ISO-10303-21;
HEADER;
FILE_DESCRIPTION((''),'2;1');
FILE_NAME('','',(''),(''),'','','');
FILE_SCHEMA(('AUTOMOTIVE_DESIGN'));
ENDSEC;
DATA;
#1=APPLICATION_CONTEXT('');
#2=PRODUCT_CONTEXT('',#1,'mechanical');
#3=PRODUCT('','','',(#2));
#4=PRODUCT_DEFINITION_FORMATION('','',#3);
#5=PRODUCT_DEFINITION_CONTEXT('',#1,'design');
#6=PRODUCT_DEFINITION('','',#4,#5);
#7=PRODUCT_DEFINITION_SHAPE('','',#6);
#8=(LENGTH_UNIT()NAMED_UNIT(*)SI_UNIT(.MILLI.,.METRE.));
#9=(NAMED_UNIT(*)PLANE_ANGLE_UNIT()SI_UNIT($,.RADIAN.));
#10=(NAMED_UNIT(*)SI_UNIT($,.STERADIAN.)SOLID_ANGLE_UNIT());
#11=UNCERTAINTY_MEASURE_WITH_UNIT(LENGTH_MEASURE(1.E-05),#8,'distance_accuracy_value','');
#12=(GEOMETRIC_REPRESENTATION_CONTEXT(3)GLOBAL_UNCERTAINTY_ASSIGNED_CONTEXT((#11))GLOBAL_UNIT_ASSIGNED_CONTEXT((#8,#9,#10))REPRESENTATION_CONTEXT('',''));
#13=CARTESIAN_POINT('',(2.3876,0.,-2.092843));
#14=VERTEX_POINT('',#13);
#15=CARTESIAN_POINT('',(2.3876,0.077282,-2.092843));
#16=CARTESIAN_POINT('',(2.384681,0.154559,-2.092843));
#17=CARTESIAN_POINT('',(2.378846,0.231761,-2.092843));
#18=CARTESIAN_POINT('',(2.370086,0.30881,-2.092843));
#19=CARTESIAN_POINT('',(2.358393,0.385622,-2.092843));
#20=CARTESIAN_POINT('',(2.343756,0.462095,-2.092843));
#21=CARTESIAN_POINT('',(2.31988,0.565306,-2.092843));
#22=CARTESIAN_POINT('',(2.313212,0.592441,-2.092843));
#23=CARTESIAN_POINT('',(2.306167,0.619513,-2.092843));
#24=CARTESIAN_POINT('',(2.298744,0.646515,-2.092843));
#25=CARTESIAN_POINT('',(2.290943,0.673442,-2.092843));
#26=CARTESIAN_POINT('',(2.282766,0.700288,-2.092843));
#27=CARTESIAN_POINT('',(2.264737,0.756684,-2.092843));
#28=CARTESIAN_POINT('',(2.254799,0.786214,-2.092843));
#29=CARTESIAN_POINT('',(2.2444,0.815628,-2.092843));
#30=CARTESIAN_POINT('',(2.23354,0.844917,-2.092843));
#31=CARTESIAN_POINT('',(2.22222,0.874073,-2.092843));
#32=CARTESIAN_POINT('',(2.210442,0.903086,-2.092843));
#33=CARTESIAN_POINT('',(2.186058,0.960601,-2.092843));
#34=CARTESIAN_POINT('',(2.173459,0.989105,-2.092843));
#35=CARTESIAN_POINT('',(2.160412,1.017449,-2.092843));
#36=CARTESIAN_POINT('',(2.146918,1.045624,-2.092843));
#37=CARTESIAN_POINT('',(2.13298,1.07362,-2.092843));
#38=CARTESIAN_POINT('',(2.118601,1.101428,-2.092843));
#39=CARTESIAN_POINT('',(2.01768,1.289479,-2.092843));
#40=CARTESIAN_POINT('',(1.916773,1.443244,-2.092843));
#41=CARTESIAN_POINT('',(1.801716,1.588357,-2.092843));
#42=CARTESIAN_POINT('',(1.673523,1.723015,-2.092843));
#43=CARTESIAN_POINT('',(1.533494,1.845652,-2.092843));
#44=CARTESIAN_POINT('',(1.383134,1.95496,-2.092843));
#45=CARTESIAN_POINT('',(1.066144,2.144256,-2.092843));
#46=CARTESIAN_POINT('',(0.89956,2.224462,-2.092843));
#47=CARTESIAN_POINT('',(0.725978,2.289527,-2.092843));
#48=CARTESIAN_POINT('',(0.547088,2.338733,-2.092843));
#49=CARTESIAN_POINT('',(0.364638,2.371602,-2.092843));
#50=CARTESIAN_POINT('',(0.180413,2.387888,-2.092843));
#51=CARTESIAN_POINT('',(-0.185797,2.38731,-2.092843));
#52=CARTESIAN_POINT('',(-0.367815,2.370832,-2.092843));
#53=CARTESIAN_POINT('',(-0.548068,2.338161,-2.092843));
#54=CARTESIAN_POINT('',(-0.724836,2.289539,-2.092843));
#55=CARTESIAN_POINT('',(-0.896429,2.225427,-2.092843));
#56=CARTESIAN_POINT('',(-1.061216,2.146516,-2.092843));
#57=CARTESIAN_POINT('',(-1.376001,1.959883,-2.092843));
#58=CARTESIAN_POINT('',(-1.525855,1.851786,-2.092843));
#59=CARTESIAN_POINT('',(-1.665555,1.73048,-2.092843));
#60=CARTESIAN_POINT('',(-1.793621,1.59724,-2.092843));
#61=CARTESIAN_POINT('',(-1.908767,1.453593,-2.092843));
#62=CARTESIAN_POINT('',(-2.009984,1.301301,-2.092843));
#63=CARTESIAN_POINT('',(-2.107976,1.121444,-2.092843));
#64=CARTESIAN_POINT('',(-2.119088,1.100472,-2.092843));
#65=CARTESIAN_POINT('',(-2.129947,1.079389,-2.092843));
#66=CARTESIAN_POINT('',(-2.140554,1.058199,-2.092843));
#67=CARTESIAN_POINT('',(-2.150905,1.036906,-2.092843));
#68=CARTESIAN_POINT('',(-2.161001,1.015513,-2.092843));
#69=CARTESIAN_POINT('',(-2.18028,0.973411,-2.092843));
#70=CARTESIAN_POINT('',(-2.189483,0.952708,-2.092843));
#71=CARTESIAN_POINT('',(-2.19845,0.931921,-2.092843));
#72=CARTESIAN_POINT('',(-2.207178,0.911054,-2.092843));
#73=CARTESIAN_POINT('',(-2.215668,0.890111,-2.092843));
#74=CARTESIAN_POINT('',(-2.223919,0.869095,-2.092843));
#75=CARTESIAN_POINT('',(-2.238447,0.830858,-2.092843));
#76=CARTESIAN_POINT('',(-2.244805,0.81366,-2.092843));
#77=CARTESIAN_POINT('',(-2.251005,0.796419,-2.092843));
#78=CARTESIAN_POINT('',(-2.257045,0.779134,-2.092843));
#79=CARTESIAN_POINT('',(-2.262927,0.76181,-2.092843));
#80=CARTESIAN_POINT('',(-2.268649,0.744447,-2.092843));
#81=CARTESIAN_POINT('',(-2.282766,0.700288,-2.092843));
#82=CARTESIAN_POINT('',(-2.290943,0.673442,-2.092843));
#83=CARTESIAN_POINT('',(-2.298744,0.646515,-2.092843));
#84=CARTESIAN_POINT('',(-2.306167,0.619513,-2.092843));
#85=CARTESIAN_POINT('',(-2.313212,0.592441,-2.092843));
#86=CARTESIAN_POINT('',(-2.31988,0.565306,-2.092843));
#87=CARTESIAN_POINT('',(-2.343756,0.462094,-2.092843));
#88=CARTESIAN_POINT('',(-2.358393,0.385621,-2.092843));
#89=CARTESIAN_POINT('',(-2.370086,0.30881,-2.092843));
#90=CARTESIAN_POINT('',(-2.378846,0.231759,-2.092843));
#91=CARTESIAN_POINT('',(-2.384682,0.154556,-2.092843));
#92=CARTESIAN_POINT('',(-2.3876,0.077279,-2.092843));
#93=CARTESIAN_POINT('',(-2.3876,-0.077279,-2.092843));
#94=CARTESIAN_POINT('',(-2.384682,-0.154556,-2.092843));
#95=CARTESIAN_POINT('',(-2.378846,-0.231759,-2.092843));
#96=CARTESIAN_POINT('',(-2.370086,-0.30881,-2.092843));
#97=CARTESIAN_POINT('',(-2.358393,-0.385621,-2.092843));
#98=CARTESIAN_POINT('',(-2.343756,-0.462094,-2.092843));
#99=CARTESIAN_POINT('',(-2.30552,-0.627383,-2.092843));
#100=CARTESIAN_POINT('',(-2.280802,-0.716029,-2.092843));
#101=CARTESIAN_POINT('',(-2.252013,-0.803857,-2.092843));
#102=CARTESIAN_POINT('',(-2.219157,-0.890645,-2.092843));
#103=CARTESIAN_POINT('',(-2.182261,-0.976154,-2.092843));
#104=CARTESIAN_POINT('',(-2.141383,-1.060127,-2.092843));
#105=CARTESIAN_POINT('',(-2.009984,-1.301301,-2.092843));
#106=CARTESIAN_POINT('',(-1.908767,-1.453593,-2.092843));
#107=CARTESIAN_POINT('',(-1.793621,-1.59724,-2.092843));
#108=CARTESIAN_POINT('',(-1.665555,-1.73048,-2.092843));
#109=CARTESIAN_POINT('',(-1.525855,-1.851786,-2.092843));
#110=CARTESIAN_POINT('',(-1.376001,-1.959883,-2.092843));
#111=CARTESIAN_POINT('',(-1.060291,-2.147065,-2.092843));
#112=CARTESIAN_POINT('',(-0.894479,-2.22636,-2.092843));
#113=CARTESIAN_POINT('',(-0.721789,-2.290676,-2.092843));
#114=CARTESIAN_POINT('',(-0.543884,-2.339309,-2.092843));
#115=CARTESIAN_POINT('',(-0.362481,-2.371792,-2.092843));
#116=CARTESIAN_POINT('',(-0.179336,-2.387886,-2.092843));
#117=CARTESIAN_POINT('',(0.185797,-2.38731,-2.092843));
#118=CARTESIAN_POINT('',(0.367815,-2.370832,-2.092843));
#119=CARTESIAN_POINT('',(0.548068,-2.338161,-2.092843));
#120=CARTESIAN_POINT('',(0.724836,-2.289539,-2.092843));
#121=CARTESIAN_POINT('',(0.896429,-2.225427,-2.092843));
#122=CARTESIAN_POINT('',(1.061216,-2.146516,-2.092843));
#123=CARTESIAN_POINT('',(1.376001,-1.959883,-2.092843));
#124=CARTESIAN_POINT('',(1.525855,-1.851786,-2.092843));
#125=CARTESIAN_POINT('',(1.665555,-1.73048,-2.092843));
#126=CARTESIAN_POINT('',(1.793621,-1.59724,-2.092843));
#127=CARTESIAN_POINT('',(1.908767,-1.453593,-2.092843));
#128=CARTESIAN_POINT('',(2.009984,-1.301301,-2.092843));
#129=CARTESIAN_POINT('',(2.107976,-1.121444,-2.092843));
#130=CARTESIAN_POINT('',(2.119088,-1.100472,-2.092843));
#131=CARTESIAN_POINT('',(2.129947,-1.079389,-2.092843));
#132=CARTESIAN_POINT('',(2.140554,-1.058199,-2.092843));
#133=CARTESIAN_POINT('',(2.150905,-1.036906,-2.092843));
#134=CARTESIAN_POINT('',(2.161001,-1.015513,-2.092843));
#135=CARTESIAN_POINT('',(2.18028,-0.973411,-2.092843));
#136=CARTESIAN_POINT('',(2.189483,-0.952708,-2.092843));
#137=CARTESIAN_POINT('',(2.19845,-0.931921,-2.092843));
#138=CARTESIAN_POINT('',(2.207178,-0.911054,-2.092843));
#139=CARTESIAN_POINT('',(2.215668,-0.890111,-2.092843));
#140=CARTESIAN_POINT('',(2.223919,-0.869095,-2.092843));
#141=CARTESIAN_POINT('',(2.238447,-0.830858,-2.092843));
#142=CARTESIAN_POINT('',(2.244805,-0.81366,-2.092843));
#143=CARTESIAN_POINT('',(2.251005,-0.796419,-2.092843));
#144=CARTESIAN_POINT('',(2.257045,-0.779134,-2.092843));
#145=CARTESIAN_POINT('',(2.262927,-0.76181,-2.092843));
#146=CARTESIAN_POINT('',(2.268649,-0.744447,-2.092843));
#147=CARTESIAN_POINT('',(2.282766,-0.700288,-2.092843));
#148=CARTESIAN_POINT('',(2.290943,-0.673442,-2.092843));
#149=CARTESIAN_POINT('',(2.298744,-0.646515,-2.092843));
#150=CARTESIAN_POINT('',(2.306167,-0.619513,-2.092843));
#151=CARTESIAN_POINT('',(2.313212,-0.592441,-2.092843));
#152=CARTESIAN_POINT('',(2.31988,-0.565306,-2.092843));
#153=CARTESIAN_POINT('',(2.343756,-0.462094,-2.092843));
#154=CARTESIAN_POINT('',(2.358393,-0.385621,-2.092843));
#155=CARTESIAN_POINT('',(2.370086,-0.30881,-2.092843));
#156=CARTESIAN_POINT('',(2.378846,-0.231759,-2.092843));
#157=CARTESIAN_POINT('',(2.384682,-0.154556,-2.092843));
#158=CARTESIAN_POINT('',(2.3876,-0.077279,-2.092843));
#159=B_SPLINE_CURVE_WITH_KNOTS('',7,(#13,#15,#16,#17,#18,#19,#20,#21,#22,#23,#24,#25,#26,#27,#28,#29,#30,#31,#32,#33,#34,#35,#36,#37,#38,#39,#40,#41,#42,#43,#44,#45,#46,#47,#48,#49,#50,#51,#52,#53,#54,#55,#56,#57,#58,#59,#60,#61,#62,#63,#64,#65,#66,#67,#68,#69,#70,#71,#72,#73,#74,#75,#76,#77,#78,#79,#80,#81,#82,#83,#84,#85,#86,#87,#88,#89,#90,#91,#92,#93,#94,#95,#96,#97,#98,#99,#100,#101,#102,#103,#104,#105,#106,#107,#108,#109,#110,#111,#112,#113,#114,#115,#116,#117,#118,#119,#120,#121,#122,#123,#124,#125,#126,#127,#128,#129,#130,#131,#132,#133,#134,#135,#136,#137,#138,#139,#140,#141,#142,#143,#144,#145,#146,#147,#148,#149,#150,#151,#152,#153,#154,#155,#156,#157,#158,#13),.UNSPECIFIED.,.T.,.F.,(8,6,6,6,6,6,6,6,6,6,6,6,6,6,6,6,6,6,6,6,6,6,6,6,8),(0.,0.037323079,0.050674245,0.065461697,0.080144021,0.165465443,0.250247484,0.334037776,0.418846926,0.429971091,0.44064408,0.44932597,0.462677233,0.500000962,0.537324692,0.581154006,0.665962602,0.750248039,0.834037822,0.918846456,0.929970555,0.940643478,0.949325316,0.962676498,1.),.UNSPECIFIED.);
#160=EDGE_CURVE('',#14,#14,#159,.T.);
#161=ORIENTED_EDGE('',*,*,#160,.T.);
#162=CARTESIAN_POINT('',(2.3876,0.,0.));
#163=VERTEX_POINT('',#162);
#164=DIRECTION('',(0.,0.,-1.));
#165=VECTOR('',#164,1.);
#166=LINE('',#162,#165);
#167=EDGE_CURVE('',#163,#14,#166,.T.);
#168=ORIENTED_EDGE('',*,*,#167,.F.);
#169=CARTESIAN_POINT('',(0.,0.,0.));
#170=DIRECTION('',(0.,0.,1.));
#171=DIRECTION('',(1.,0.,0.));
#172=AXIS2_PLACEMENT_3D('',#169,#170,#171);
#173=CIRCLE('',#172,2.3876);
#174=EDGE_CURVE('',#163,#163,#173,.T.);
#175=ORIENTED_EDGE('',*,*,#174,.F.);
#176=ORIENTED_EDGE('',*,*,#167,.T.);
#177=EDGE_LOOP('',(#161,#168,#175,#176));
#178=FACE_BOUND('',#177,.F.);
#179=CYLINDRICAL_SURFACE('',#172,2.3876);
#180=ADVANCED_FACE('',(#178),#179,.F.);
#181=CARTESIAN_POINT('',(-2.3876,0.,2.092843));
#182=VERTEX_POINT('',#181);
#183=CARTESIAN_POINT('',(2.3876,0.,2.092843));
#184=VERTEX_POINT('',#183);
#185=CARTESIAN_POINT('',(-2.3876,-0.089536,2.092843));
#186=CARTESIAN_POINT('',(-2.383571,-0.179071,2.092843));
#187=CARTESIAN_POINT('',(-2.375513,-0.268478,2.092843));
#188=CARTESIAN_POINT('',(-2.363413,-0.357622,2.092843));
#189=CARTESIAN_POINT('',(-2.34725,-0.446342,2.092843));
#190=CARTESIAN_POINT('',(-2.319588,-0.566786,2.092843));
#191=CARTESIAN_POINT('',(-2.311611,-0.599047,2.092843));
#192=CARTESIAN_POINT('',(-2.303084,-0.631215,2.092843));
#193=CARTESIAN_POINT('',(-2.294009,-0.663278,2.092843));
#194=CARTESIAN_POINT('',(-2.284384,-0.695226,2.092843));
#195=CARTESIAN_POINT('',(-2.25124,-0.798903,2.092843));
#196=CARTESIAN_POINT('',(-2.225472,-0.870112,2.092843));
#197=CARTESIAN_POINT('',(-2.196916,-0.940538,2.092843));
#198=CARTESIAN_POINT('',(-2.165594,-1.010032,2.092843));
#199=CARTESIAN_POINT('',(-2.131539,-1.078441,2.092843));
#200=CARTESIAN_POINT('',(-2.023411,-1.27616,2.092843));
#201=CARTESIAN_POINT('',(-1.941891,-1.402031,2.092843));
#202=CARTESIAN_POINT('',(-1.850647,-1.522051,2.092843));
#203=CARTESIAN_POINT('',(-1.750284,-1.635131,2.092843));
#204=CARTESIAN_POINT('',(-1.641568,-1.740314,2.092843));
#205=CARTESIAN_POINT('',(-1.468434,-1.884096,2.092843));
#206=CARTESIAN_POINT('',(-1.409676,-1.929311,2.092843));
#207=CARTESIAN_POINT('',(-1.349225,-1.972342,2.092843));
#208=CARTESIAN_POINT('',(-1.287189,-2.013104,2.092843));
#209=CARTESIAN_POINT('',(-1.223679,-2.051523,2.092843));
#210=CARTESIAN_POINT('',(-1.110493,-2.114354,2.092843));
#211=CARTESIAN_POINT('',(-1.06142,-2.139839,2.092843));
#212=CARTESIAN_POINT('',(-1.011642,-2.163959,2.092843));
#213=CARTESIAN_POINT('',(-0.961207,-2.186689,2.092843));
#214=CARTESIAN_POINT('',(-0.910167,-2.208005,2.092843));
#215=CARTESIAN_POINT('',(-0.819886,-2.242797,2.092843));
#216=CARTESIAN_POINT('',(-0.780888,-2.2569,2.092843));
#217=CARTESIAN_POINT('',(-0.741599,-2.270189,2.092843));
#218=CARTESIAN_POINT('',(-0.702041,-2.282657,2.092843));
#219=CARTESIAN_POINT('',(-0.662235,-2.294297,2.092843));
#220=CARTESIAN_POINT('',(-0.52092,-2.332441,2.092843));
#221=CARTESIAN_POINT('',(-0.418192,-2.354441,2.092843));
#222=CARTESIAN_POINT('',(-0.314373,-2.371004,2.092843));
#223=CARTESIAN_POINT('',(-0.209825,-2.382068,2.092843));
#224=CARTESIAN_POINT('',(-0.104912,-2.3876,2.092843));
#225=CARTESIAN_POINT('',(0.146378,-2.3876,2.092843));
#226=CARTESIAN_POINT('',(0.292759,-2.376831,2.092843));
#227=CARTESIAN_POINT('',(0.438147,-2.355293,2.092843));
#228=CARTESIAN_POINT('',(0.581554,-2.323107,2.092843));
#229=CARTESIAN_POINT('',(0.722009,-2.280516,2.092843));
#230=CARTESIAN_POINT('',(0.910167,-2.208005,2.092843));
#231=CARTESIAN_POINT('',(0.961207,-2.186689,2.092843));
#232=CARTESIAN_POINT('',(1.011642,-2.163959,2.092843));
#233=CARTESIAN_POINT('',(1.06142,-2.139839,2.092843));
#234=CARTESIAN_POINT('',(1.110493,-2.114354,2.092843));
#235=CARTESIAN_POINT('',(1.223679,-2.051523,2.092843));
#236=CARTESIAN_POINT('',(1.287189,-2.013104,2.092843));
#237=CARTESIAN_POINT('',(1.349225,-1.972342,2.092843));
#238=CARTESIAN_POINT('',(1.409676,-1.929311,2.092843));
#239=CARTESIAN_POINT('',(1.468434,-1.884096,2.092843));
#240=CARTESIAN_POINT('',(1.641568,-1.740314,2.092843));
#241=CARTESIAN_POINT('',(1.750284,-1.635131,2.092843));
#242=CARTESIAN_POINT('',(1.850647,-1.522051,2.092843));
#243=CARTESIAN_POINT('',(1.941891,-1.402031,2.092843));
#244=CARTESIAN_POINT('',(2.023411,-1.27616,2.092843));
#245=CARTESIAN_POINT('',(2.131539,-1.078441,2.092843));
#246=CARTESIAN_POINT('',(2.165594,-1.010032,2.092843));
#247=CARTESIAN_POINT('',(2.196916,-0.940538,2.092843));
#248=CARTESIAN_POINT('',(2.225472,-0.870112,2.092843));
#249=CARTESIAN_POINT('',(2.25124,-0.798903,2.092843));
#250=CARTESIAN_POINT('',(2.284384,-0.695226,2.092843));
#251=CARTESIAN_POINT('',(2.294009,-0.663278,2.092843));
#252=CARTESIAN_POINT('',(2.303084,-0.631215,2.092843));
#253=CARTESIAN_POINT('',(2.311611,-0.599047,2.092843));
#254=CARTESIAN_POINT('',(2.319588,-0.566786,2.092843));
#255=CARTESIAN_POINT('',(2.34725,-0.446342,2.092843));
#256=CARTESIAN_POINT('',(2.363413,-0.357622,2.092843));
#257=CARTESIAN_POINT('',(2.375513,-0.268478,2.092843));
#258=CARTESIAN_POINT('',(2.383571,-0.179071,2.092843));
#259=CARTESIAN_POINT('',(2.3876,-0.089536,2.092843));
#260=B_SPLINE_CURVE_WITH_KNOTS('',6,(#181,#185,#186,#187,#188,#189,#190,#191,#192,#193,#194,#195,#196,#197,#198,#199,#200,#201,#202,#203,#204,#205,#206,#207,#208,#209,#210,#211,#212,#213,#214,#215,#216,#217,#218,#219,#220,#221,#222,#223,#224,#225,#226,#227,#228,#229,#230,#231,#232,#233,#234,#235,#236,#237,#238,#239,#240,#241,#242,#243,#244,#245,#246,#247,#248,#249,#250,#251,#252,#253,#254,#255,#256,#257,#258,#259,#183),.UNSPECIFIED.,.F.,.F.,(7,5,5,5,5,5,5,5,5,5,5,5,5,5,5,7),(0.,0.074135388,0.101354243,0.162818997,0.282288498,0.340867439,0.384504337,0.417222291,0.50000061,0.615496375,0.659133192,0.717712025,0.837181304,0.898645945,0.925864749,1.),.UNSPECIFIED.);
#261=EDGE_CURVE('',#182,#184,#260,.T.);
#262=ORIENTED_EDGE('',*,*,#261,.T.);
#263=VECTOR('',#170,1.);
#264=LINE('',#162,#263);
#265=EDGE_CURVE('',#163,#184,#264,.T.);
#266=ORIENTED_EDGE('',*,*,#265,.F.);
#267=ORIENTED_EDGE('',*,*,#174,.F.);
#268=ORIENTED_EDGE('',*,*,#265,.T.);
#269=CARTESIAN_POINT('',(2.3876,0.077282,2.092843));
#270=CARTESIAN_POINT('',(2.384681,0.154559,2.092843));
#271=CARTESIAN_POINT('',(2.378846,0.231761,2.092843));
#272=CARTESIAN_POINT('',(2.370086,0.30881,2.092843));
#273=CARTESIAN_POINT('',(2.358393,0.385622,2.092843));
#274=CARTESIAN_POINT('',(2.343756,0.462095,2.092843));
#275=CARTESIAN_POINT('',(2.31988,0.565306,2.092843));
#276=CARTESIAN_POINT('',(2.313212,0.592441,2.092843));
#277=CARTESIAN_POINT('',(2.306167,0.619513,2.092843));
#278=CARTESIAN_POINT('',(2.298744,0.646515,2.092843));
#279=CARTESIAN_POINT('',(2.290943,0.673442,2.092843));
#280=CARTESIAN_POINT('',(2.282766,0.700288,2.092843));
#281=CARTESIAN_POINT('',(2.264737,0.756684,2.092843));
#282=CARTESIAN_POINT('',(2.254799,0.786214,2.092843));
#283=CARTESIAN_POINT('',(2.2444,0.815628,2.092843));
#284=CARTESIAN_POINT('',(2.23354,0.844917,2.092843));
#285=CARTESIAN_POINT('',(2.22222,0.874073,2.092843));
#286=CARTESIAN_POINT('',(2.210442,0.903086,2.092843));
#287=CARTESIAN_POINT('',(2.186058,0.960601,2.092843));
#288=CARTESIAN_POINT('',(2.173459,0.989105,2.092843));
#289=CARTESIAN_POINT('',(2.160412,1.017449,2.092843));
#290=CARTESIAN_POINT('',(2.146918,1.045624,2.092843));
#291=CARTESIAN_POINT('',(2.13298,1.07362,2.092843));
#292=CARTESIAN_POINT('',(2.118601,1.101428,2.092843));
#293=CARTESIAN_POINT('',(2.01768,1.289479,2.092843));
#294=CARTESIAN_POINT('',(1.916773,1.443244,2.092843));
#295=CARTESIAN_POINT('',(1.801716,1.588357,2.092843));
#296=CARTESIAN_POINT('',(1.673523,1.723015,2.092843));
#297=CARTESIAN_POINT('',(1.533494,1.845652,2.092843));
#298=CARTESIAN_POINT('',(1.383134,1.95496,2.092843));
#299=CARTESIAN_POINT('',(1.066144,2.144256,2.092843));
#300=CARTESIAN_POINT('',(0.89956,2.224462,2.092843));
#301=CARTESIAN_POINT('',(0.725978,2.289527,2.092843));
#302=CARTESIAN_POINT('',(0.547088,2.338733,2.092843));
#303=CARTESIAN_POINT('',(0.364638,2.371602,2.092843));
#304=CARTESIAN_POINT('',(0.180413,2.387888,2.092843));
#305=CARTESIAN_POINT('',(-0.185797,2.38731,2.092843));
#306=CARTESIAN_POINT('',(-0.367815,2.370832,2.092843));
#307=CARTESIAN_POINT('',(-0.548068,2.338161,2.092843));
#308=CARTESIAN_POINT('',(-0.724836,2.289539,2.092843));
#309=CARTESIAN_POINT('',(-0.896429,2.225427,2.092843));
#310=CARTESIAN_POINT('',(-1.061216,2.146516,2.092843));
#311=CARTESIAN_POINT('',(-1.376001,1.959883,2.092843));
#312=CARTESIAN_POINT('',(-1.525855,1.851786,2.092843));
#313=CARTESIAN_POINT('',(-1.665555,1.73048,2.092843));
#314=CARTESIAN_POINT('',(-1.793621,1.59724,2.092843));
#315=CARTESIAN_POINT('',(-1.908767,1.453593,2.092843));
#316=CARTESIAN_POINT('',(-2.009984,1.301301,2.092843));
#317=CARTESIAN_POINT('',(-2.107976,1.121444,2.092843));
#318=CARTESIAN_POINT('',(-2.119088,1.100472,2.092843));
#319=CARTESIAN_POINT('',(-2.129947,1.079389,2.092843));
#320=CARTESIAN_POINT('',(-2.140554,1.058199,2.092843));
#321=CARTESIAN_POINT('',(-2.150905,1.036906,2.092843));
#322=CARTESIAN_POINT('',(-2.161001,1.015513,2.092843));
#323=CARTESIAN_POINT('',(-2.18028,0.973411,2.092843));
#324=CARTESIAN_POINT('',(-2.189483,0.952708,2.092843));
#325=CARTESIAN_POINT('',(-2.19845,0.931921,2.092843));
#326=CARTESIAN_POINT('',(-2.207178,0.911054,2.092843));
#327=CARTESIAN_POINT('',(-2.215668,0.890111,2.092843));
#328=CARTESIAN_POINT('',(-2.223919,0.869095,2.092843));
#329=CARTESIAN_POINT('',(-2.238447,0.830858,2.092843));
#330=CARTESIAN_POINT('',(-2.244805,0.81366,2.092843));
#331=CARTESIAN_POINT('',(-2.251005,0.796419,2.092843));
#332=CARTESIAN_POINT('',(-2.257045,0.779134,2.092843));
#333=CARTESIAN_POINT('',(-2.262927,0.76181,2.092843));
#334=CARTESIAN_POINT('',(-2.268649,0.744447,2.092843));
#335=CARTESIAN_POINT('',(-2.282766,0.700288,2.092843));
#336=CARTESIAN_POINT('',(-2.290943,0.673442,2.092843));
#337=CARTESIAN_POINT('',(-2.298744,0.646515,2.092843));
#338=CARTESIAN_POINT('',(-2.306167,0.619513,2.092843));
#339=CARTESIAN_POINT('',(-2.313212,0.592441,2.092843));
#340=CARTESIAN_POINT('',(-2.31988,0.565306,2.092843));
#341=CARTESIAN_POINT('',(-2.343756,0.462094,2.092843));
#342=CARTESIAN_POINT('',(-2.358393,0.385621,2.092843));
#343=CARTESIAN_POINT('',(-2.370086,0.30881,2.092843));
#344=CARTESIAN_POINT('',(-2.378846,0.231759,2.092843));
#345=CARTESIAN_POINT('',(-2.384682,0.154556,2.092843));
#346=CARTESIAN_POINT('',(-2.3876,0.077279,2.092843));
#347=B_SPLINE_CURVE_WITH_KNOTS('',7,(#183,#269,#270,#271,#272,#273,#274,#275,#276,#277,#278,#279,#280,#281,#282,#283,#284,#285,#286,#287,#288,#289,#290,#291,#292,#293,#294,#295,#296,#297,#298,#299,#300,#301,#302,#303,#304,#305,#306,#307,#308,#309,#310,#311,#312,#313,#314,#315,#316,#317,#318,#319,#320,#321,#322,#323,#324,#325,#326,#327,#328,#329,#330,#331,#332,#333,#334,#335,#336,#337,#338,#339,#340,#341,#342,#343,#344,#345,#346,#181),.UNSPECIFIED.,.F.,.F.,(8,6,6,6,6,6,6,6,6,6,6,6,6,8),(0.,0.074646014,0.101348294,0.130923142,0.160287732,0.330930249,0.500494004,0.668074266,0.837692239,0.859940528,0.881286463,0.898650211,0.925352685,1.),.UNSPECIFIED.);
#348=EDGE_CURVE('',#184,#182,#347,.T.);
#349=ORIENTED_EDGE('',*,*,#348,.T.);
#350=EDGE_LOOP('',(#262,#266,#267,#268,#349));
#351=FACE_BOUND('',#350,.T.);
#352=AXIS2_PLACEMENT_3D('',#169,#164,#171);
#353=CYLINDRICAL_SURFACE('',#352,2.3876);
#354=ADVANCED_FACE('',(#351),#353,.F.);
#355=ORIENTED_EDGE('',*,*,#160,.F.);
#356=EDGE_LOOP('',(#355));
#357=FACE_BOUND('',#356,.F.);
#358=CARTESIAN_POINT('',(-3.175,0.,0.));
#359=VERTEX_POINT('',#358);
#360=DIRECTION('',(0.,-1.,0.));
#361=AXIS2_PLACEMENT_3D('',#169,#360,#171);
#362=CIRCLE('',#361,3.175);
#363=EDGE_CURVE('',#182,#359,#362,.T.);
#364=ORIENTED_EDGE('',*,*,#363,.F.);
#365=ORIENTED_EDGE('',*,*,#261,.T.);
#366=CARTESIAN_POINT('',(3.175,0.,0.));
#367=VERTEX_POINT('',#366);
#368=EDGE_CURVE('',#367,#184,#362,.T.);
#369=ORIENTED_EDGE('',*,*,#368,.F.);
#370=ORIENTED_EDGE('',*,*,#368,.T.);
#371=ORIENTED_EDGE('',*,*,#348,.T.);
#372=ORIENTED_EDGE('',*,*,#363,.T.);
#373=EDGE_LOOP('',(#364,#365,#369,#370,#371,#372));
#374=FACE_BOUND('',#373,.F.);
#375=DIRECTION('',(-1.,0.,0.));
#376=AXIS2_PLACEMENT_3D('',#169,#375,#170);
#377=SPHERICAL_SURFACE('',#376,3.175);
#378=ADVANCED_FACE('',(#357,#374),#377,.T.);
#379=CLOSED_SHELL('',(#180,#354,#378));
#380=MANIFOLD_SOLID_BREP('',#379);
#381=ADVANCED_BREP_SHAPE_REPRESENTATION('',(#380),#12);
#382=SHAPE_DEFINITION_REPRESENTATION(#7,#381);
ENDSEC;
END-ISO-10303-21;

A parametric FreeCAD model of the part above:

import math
import FreeCAD as App
import Part
import Sketcher

V = App.Vector
Q = App.Units.Quantity

doc = App.newDocument("Part")
body = doc.addObject("PartDesign::Body", "Body")

sketch1 = body.newObject("Sketcher::SketchObject", "Sketch")
sketch1.AttachmentSupport = (doc.getObject("XZ_Plane"), [""])
sketch1.MapMode = "FlatFace"
sketch1.addGeometry(Part.LineSegment(V(-3.175, 0, 0), V(3.175, 0, 0)), False)
sketch1.addGeometry(Part.ArcOfCircle(Part.Circle(V(0, 0, 0), V(0, 0, 1), 3.175), math.radians(0), math.radians(180)), False)
sketch1.addConstraint(Sketcher.Constraint("Coincident", 0, 1, 1, 2))
sketch1.addConstraint(Sketcher.Constraint("Coincident", 1, 1, 0, 2))
sketch1.addConstraint(Sketcher.Constraint("Horizontal", 0))
sketch1.addConstraint(Sketcher.Constraint("Coincident", 1, 3, -1, 1))
sketch1.addConstraint(Sketcher.Constraint("PointOnObject", 0, 1, -1))
sketch1.addConstraint(Sketcher.Constraint("Radius", 1, Q("0.125 in")))
revolution = body.newObject("PartDesign::Revolution", "Revolution")
revolution.Profile = sketch1
revolution.ReferenceAxis = (sketch1, ["H_Axis"])
revolution.Angle = 360

sketch2 = body.newObject("Sketcher::SketchObject", "Sketch001")
sketch2.AttachmentSupport = (doc.getObject("XY_Plane"), [""])
sketch2.MapMode = "FlatFace"
sketch2.addGeometry(Part.Circle(V(0, 0, 0), V(0, 0, 1), 2.3876), False)
sketch2.addConstraint(Sketcher.Constraint("Coincident", 0, 3, -1, 1))
sketch2.addConstraint(Sketcher.Constraint("Diameter", 0, Q("0.188 in")))
pocket1 = body.newObject("PartDesign::Pocket", "Pocket")
pocket1.Profile = sketch2
pocket1.Type = "ThroughAll"
pocket1.Midplane = True

doc.recompute()
